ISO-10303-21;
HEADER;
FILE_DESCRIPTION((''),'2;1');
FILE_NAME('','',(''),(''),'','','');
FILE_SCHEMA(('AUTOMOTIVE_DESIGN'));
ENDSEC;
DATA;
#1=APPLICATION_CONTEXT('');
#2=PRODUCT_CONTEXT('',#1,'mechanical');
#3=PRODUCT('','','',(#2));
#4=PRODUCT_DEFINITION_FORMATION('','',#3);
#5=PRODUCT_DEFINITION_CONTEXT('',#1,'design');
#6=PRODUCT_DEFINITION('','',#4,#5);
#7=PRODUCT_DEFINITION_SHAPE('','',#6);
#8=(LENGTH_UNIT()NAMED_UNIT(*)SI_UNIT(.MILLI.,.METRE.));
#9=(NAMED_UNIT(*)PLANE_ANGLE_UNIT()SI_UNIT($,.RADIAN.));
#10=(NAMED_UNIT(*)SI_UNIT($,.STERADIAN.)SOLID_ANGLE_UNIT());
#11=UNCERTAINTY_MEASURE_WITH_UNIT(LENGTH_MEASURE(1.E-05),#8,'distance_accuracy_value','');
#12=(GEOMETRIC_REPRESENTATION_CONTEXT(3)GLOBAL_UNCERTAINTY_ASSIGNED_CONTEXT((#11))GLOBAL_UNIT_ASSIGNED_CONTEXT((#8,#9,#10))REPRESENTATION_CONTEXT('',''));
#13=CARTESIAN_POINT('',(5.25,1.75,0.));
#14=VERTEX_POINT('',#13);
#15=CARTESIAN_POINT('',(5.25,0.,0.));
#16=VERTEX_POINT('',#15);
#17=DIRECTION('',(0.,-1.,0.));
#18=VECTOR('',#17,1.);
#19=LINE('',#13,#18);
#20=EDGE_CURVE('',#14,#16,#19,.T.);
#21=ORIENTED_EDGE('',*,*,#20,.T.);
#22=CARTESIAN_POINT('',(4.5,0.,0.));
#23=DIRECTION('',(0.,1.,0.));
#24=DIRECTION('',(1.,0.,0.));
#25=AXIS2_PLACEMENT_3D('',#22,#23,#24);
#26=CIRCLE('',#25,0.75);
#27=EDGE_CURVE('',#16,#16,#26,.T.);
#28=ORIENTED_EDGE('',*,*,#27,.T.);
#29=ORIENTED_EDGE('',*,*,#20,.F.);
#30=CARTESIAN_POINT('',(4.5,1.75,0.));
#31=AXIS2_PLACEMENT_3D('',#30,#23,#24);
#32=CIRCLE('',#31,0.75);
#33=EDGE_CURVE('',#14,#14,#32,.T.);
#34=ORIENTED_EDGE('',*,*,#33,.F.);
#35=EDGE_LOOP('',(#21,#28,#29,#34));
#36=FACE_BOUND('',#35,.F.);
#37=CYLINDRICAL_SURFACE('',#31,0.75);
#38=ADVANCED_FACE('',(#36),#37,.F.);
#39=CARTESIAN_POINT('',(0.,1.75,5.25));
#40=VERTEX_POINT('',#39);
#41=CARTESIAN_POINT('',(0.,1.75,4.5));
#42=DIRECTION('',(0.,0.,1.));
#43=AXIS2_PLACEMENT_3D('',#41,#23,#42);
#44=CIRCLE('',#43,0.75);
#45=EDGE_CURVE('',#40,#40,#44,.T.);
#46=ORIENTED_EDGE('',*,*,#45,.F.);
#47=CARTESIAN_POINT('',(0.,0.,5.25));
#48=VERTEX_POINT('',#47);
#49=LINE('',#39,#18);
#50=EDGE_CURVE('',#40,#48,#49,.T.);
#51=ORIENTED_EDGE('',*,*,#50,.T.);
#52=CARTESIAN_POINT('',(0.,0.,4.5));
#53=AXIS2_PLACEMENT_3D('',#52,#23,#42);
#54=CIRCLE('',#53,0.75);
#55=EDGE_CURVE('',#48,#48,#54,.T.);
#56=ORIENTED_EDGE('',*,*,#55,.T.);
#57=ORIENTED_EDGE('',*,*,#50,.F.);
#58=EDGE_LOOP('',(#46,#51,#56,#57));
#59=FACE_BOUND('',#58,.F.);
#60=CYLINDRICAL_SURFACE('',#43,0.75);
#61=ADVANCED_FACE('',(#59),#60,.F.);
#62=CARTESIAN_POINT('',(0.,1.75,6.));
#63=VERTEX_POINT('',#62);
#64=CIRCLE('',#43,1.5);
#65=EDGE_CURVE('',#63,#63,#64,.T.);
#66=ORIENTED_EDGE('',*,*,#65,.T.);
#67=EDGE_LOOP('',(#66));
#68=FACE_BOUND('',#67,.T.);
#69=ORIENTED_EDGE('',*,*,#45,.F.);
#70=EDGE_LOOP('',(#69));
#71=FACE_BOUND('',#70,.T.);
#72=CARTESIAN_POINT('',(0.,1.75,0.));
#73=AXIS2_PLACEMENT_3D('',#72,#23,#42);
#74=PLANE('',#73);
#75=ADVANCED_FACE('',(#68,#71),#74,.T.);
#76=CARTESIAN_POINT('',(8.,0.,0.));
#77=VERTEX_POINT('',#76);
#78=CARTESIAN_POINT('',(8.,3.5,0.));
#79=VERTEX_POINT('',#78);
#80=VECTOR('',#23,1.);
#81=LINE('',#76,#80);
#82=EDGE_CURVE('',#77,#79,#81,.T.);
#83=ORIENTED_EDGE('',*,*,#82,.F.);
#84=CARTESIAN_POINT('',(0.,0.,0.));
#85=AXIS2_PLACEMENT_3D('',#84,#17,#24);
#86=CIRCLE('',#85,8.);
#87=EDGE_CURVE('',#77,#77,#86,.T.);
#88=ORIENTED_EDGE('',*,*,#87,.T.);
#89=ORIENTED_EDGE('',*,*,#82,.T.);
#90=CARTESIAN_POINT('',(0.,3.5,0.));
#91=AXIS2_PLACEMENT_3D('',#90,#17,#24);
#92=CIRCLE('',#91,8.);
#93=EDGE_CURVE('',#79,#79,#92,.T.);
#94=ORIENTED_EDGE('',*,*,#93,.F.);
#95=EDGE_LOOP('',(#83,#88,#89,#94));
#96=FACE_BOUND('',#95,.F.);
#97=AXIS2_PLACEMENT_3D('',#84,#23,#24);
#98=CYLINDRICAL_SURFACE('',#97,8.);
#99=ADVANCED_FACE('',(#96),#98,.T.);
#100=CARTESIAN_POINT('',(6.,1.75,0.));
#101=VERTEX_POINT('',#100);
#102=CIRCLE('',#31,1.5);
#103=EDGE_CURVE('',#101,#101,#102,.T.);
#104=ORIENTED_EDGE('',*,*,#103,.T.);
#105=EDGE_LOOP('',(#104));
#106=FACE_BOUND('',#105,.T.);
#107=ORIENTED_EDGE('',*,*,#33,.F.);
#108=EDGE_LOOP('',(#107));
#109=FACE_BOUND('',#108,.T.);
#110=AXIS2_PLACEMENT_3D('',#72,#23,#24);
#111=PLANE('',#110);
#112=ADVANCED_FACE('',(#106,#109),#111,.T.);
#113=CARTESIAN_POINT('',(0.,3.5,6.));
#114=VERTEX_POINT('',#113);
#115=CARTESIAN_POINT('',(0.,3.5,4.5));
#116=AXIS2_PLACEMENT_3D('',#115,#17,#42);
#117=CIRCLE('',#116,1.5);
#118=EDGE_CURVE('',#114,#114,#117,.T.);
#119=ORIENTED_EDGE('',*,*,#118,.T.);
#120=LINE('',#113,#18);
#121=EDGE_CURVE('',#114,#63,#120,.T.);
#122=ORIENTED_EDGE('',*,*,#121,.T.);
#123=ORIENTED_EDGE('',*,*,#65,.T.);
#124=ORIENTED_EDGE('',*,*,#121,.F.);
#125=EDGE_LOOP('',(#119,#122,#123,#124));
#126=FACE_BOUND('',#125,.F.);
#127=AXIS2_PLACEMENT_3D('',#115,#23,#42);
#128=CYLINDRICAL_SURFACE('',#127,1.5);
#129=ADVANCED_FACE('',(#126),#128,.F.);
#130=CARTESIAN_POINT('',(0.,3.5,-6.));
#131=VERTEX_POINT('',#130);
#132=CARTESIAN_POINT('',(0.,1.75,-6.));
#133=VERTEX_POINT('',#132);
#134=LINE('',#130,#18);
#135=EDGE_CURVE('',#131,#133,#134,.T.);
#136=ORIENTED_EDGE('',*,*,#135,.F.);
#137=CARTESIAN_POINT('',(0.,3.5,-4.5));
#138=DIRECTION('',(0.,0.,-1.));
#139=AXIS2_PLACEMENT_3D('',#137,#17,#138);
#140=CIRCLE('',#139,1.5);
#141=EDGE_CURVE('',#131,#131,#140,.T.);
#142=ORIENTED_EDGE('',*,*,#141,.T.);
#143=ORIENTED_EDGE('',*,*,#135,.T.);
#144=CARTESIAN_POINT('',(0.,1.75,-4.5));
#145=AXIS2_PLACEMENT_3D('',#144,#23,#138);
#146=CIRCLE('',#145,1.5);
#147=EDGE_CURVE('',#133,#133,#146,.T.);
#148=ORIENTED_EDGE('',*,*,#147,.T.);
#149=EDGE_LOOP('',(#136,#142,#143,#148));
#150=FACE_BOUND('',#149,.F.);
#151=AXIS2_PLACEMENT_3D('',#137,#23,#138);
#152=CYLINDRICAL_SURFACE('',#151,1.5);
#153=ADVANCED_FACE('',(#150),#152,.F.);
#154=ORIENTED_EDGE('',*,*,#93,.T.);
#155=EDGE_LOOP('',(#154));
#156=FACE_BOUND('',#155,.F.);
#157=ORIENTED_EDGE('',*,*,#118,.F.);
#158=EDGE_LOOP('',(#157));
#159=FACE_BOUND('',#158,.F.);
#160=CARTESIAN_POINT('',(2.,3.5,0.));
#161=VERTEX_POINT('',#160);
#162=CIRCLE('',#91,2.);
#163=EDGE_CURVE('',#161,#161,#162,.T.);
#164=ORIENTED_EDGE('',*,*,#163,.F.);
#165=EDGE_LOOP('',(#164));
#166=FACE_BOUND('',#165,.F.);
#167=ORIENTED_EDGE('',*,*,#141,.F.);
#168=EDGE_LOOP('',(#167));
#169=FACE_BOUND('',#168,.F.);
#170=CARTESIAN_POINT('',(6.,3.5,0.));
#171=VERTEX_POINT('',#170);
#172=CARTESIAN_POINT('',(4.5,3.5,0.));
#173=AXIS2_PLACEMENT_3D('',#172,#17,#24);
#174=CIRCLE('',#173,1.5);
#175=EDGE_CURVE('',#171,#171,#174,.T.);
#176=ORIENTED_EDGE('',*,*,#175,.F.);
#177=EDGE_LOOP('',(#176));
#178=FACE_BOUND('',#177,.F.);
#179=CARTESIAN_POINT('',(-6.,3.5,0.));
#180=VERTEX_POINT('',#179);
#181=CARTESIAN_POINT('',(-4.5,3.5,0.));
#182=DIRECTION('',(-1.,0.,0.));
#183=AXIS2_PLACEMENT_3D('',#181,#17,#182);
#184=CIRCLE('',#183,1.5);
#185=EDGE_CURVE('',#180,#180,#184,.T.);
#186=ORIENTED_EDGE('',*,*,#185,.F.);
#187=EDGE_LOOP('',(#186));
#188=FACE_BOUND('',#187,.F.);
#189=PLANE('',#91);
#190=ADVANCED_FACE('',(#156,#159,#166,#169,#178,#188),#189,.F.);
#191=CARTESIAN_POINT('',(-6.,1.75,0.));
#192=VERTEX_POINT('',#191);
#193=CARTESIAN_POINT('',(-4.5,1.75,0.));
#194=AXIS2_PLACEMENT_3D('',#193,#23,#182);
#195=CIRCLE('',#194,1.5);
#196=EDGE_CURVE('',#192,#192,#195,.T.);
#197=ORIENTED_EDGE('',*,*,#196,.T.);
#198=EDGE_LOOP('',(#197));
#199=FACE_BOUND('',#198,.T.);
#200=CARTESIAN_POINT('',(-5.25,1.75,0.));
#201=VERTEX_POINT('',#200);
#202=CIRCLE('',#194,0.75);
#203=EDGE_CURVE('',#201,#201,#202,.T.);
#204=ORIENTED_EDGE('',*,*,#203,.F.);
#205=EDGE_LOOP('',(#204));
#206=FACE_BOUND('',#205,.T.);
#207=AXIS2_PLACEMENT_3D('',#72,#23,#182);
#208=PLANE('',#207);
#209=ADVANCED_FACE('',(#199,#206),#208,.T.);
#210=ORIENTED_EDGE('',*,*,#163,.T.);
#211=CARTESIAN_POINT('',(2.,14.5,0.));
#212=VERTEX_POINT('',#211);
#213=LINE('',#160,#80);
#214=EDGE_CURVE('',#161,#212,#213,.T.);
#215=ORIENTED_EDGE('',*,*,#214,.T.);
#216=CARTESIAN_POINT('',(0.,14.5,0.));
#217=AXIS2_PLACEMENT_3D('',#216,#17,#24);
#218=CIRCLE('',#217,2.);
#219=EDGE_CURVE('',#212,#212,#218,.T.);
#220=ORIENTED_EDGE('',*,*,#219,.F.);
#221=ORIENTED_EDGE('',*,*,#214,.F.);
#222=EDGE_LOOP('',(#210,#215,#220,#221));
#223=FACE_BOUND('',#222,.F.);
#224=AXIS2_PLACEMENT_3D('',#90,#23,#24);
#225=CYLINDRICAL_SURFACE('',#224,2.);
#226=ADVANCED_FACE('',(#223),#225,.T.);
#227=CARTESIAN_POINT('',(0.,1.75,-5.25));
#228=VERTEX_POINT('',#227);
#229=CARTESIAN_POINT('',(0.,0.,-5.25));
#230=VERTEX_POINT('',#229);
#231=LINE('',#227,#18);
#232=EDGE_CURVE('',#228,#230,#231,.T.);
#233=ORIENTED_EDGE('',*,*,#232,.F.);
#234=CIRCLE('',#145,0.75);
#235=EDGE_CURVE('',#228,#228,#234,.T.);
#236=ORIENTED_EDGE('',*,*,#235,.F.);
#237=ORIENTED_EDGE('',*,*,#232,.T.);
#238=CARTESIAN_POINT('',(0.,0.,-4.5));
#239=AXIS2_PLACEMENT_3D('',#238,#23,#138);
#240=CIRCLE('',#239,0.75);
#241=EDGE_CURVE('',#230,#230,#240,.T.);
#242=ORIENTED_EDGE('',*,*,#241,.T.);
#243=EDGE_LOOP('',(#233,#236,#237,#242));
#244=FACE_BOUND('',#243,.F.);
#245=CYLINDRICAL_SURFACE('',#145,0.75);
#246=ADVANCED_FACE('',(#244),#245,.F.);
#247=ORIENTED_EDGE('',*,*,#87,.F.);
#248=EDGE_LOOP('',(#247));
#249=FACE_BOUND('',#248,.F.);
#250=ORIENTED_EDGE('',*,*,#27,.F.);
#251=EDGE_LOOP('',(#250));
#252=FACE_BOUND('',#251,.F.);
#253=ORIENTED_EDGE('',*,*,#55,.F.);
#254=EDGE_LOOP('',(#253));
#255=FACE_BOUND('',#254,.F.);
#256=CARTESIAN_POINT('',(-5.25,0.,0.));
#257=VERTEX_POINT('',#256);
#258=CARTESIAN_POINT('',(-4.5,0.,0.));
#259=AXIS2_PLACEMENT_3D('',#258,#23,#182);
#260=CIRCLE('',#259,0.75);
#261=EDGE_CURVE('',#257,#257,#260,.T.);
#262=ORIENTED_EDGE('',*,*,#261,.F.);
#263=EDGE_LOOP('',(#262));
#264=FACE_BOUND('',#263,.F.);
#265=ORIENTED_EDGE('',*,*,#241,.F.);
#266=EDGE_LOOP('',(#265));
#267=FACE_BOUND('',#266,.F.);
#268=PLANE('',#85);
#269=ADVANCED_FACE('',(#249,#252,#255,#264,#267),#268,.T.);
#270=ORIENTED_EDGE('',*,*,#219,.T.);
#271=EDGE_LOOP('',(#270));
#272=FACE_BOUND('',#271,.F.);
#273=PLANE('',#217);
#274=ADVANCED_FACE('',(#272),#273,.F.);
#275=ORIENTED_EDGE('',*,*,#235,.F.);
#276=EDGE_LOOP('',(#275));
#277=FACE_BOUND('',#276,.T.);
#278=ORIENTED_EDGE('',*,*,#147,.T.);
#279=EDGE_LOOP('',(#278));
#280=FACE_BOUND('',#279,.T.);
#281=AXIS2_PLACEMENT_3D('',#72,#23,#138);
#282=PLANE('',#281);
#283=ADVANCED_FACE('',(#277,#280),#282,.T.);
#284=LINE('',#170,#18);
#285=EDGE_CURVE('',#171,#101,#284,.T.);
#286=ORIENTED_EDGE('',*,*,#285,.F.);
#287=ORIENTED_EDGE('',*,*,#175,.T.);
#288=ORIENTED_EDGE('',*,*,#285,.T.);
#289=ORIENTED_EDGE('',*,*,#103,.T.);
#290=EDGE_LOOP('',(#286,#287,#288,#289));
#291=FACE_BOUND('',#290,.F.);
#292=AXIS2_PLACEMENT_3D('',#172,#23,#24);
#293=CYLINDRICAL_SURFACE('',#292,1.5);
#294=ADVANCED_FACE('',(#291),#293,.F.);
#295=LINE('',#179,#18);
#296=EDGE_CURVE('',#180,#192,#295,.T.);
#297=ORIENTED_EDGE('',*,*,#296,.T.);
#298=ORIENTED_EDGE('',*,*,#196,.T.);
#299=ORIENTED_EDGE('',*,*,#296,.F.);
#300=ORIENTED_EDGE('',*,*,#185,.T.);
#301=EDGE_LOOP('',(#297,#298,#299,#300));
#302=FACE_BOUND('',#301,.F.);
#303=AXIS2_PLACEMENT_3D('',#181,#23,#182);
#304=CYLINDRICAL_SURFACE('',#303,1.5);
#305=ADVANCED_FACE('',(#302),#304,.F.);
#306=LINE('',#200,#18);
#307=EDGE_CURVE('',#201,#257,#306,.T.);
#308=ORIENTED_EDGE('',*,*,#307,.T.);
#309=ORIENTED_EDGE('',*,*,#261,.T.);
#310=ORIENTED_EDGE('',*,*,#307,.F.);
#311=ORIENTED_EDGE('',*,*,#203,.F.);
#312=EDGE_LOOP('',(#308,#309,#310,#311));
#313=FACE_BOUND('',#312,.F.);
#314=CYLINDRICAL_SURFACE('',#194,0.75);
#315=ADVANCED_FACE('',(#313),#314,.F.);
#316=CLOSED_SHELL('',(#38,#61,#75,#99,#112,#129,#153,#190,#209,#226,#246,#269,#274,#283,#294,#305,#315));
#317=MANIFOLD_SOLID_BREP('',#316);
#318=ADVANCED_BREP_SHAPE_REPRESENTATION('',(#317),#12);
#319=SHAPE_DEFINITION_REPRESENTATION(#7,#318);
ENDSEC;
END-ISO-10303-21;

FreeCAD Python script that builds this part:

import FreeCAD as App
import Part
import Sketcher


def add_polygon(sketch, points):
    """Adds a closed chain of lines whose ends are joined by coincident constraints."""
    first, n = sketch.GeometryCount, len(points)
    for a, b in zip(points, points[1:] + points[:1]):
        sketch.addGeometry(Part.LineSegment(App.Vector(*a, 0), App.Vector(*b, 0)), False)
    for i in range(n):
        sketch.addConstraint(Sketcher.Constraint("Coincident", first + i, 2, first + (i + 1) % n, 1))

doc = App.newDocument("Part")
body = doc.addObject("PartDesign::Body", "Body")

sketch1 = body.newObject("Sketcher::SketchObject", "Sketch")
sketch1.AttachmentSupport = (doc.getObject("XY_Plane"), [""])
sketch1.MapMode = "FlatFace"
add_polygon(sketch1, [(0, 14.5), (0, 0), (8, 0), (8, 3.5), (2, 3.5), (2, 14.5)])
sketch1.addConstraint(Sketcher.Constraint("Vertical", 0))
sketch1.addConstraint(Sketcher.Constraint("Horizontal", 1))
sketch1.addConstraint(Sketcher.Constraint("Vertical", 2))
sketch1.addConstraint(Sketcher.Constraint("Horizontal", 3))
sketch1.addConstraint(Sketcher.Constraint("Vertical", 4))
sketch1.addConstraint(Sketcher.Constraint("Horizontal", 5))
sketch1.addConstraint(Sketcher.Constraint("Coincident", 0, 2, -1, 1))
sketch1.addConstraint(Sketcher.Constraint("DistanceX", 1, 1, 1, 2, 8.0))
sketch1.addConstraint(Sketcher.Constraint("DistanceX", 3, 2, 3, 1, 6.0))
sketch1.addConstraint(Sketcher.Constraint("DistanceY", 4, 1, 4, 2, 11.0))
sketch1.addConstraint(Sketcher.Constraint("DistanceY", 0, 2, 0, 1, 14.5))
revolution = body.newObject("PartDesign::Revolution", "Revolution")
revolution.Profile = sketch1
revolution.ReferenceAxis = (sketch1, ["V_Axis"])
revolution.Angle = 360

sketch2 = body.newObject("Sketcher::SketchObject", "Sketch001")
sketch2.AttachmentSupport = (doc.getObject("XZ_Plane"), [""])
sketch2.MapMode = "FlatFace"
sketch2.AttachmentOffset = App.Placement(App.Vector(0, 0, -3.5), App.Rotation())
sketch2.addGeometry(Part.Circle(App.Vector(-4.5, 0, 0), App.Vector(0, 0, 1), 1.5), False)
sketch2.addConstraint(Sketcher.Constraint("PointOnObject", 0, 3, -1))
sketch2.addConstraint(Sketcher.Constraint("Diameter", 0, 3.0))
sketch2.addConstraint(Sketcher.Constraint("DistanceX", 0, 3, -1, 1, 4.5))
pocket1 = body.newObject("PartDesign::Pocket", "Pocket")
pocket1.Profile = sketch2
pocket1.Length = 1.75
pocket1.Reversed = True

sketch3 = body.newObject("Sketcher::SketchObject", "Sketch002")
sketch3.AttachmentSupport = (doc.getObject("XZ_Plane"), [""])
sketch3.MapMode = "FlatFace"
sketch3.AttachmentOffset = App.Placement(App.Vector(0, 0, -1.75), App.Rotation())
sketch3.addGeometry(Part.Circle(App.Vector(-4.5, 0, 0), App.Vector(0, 0, 1), 0.8), False)
sketch3.addConstraint(Sketcher.Constraint("PointOnObject", 0, 3, -1))
sketch3.addConstraint(Sketcher.Constraint("Diameter", 0, 1.5))
sketch3.addConstraint(Sketcher.Constraint("DistanceX", 0, 3, -1, 1, 4.5))
pocket2 = body.newObject("PartDesign::Pocket", "Pocket001")
pocket2.Profile = sketch3
pocket2.Length = 5
pocket2.Reversed = True
doc.recompute()

polarpattern = body.newObject("PartDesign::PolarPattern", "PolarPattern")
polarpattern.Originals = [pocket1]
polarpattern.Axis = (doc.getObject("Y_Axis"), [""])
polarpattern.Angle = 360
polarpattern.Occurrences = 4
body.Tip = polarpattern
doc.recompute()

polarpattern2 = body.newObject("PartDesign::PolarPattern", "PolarPattern001")
polarpattern2.Originals = [pocket2]
polarpattern2.Axis = (doc.getObject("Y_Axis"), [""])
polarpattern2.Angle = 360
polarpattern2.Occurrences = 4
body.Tip = polarpattern2

doc.recompute()
